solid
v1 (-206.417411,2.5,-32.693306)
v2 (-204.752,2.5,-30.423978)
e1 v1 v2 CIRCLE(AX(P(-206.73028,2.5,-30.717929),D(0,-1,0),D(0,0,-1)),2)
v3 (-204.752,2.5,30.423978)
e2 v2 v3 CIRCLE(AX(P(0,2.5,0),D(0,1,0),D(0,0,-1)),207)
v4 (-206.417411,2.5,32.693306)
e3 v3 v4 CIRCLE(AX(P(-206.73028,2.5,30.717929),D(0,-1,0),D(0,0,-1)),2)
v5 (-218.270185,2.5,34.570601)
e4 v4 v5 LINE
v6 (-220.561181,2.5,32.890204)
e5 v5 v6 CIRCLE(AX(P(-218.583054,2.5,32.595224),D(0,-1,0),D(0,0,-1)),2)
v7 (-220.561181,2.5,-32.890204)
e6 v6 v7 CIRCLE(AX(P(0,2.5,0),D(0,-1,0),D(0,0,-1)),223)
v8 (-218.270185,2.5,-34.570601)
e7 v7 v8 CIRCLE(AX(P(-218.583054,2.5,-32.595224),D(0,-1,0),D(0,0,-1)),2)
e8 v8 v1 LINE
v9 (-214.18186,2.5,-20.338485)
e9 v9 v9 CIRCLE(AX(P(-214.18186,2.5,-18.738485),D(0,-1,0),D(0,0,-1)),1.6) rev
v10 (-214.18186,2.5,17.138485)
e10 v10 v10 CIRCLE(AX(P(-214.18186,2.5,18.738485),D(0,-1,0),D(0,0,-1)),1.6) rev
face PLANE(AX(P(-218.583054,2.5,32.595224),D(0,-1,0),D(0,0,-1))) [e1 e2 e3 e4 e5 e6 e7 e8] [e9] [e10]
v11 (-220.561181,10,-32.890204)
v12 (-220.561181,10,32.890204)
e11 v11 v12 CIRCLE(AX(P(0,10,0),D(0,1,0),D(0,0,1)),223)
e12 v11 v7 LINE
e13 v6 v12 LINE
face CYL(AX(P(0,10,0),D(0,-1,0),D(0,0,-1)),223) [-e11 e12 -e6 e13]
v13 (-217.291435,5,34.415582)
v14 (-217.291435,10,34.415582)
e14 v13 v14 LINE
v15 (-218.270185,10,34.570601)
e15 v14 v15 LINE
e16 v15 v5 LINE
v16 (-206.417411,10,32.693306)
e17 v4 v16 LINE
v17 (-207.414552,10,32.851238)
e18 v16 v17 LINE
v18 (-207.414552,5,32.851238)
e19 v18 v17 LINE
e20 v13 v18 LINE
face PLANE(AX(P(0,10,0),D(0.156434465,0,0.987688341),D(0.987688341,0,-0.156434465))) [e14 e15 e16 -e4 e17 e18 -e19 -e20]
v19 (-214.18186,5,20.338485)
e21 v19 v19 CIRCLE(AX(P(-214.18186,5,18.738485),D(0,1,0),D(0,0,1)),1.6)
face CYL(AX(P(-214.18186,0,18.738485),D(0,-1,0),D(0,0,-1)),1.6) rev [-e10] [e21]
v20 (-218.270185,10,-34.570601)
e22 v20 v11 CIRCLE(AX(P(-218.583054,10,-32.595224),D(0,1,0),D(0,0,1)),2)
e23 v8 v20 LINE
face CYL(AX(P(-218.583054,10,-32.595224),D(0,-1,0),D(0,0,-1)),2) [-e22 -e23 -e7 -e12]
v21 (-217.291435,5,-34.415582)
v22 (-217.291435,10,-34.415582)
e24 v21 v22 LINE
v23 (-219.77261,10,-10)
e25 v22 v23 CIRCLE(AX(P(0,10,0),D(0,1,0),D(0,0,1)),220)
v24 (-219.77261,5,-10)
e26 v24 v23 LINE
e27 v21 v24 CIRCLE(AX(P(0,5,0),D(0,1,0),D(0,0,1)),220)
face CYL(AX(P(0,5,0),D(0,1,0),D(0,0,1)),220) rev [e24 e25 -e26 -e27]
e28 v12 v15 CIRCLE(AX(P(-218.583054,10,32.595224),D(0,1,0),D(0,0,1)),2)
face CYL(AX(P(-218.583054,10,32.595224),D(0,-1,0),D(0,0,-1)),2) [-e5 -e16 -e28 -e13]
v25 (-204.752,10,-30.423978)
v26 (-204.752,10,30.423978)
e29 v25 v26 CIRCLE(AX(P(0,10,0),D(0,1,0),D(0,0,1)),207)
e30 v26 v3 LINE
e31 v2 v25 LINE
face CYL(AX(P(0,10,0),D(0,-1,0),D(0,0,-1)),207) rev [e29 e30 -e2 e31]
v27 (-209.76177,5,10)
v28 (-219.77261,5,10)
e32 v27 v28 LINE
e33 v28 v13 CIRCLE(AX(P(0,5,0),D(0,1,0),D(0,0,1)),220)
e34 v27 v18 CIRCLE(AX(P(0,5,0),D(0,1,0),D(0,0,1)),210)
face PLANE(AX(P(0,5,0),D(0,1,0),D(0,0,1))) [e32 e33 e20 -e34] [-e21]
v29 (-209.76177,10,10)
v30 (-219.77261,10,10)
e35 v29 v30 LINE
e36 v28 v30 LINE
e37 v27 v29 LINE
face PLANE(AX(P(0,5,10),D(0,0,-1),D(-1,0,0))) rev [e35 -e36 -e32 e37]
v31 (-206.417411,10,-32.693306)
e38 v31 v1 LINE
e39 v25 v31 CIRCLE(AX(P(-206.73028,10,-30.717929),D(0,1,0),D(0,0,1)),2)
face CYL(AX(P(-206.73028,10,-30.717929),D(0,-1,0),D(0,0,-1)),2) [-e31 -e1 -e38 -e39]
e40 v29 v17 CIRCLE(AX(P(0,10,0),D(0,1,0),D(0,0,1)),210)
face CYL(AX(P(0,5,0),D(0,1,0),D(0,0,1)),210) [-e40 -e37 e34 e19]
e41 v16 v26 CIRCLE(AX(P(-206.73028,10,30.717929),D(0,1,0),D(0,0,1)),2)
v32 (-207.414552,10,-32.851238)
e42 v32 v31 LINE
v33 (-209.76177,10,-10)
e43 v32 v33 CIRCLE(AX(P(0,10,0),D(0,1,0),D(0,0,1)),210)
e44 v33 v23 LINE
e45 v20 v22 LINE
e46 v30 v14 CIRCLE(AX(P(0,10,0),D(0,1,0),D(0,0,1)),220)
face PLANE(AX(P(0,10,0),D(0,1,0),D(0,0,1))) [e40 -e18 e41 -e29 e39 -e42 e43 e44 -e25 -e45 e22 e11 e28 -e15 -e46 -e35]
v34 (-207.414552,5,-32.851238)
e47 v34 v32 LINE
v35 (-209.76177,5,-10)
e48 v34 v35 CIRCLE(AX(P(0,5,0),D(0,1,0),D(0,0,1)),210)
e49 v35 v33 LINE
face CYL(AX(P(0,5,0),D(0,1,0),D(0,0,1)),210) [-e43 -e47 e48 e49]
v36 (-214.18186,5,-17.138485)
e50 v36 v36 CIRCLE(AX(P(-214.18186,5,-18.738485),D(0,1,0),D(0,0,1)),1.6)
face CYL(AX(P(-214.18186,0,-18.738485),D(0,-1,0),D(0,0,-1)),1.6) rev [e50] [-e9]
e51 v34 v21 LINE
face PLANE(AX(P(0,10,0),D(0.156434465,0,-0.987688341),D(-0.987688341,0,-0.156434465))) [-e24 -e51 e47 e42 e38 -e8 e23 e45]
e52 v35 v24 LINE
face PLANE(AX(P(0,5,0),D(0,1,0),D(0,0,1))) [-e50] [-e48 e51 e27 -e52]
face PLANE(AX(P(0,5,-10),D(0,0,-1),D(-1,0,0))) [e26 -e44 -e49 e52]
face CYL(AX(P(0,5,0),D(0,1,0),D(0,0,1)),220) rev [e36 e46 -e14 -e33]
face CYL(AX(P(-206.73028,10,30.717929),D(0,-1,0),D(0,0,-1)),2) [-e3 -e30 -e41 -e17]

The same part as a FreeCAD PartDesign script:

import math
import FreeCAD as App
import Part
import Sketcher
from FreeCAD import Vector
Q = App.Units.Quantity


def edges_at(feature, points):
    """Names of the edges that pass closest to the given points."""
    edges = feature.Shape.Edges
    near = lambda p: min(range(len(edges)), key=lambda i: edges[i].distToShape(Part.Vertex(*p))[0])
    return sorted({f"Edge{near(p) + 1}" for p in points})

doc = App.newDocument("Part")
body = doc.addObject("PartDesign::Body", "Body")

# Sketch on XZ plane
sketch1 = doc.addObject("Sketcher::SketchObject", "Sketch")
body.addObject(sketch1)
sketch1.AttachmentSupport = (doc.XZ_Plane, [""])
sketch1.MapMode = "FlatFace"
sketch1.addGeometry(Part.LineSegment(Vector(-217.291435, 34.415582, 0), Vector(-207.414552, 32.851238, 0)), False)
sketch1.addGeometry(Part.LineSegment(Vector(-207.414552, 32.851238, 0), Vector(-204.451487, 32.381934, 0)), False)
sketch1.addGeometry(Part.ArcOfCircle(Part.Circle(Vector(0, 0, 0), Vector(0, 0, 1), 207), math.radians(171), math.radians(189)), False)
sketch1.addGeometry(Part.LineSegment(Vector(-204.451487, -32.381934, 0), Vector(-207.414552, -32.851238, 0)), False)
sketch1.addGeometry(Part.LineSegment(Vector(-207.414552, -32.851238, 0), Vector(-217.291435, -34.415582, 0)), False)
sketch1.addGeometry(Part.LineSegment(Vector(-217.291435, -34.415582, 0), Vector(-220.2545, -34.884886, 0)), False)
sketch1.addGeometry(Part.ArcOfCircle(Part.Circle(Vector(0, 0, 0), Vector(0, 0, 1), 223), math.radians(171), math.radians(189)), False)
sketch1.addGeometry(Part.LineSegment(Vector(-220.2545, 34.884886, 0), Vector(-217.291435, 34.415582, 0)), False)
sketch1.addConstraint(Sketcher.Constraint("Coincident", 0, 2, 1, 1))
sketch1.addConstraint(Sketcher.Constraint("Coincident", 1, 2, 2, 1))
sketch1.addConstraint(Sketcher.Constraint("Coincident", 2, 2, 3, 1))
sketch1.addConstraint(Sketcher.Constraint("Coincident", 3, 2, 4, 1))
sketch1.addConstraint(Sketcher.Constraint("Coincident", 4, 2, 5, 1))
sketch1.addConstraint(Sketcher.Constraint("Coincident", 5, 2, 6, 2))
sketch1.addConstraint(Sketcher.Constraint("Coincident", 6, 1, 7, 1))
sketch1.addConstraint(Sketcher.Constraint("Coincident", 7, 2, 0, 1))
sketch1.addConstraint(Sketcher.Constraint("Coincident", 2, 3, -1, 1))
sketch1.addConstraint(Sketcher.Constraint("Coincident", 6, 3, -1, 1))
sketch1.addConstraint(Sketcher.Constraint("Symmetric", 0, 2, 3, 2, -1))
sketch1.addConstraint(Sketcher.Constraint("Symmetric", 4, 2, 7, 2, -1))
sketch1.addConstraint(Sketcher.Constraint("Parallel", 0, 1))
sketch1.addConstraint(Sketcher.Constraint("Parallel", 3, 4))
sketch1.addConstraint(Sketcher.Constraint("Parallel", 4, 5))
sketch1.addConstraint(Sketcher.Constraint("Parallel", 1, 7))
sketch1.addConstraint(Sketcher.Constraint("Equal", 3, 5))
sketch1.addConstraint(Sketcher.Constraint("Radius", 2, Q("207 mm")))
sketch1.addConstraint(Sketcher.Constraint("Radius", 6, Q("223 mm")))
sketch1.addConstraint(Sketcher.Constraint("Angle", 0, Q("-9 deg")))
sketch1.addConstraint(Sketcher.Constraint("Distance", 0, Q("10 mm")))
sketch1.addConstraint(Sketcher.Constraint("DistanceX", 5, 2, -1, 1, Q("220.2545 mm")))
pad1 = doc.addObject("PartDesign::Pad", "Pad")
body.addObject(pad1)
pad1.Profile = sketch1
pad1.Length = 10
pad1.Reversed = True

# Sketch on XZ plane
sketch2 = doc.addObject("Sketcher::SketchObject", "Sketch001")
body.addObject(sketch2)
sketch2.AttachmentSupport = (doc.XZ_Plane, [""])
sketch2.MapMode = "FlatFace"
sketch2.AttachmentOffset = App.Placement(Vector(0, 0, -10), App.Rotation())
sketch2.addGeometry(Part.LineSegment(Vector(-219.77261, -10, 0), Vector(-209.76177, -10, 0)), False)
sketch2.addGeometry(Part.ArcOfCircle(Part.Circle(Vector(0, 0, 0), Vector(0, 0, 1), 210), math.radians(-177.270597), math.radians(-171)), False)
sketch2.addGeometry(Part.LineSegment(Vector(-207.414552, -32.851238, 0), Vector(-217.291435, -34.415582, 0)), False)
sketch2.addGeometry(Part.ArcOfCircle(Part.Circle(Vector(0, 0, 0), Vector(0, 0, 1), 220), math.radians(-177.394749), math.radians(-171)), False)
sketch2.addGeometry(Part.ArcOfCircle(Part.Circle(Vector(0, 0, 0), Vector(0, 0, 1), 210), math.radians(171), math.radians(177.270597)), False)
sketch2.addGeometry(Part.LineSegment(Vector(-209.76177, 10, 0), Vector(-219.77261, 10, 0)), False)
sketch2.addGeometry(Part.ArcOfCircle(Part.Circle(Vector(0, 0, 0), Vector(0, 0, 1), 220), math.radians(171), math.radians(177.394749)), False)
sketch2.addGeometry(Part.LineSegment(Vector(-217.291435, 34.415582, 0), Vector(-207.414552, 32.851238, 0)), False)
sketch2.addConstraint(Sketcher.Constraint("Coincident", 0, 2, 1, 1))
sketch2.addConstraint(Sketcher.Constraint("Coincident", 1, 2, 2, 1))
sketch2.addConstraint(Sketcher.Constraint("Coincident", 2, 2, 3, 2))
sketch2.addConstraint(Sketcher.Constraint("Coincident", 3, 1, 0, 1))
sketch2.addConstraint(Sketcher.Constraint("Coincident", 4, 2, 5, 1))
sketch2.addConstraint(Sketcher.Constraint("Coincident", 5, 2, 6, 2))
sketch2.addConstraint(Sketcher.Constraint("Coincident", 6, 1, 7, 1))
sketch2.addConstraint(Sketcher.Constraint("Coincident", 7, 2, 4, 1))
sketch2.addConstraint(Sketcher.Constraint("Horizontal", 0))
sketch2.addConstraint(Sketcher.Constraint("Horizontal", 5))
sketch2.addConstraint(Sketcher.Constraint("Coincident", 1, 3, -1, 1))
sketch2.addConstraint(Sketcher.Constraint("Coincident", 3, 3, -1, 1))
sketch2.addConstraint(Sketcher.Constraint("Coincident", 4, 3, -1, 1))
sketch2.addConstraint(Sketcher.Constraint("Coincident", 6, 3, -1, 1))
sketch2.addConstraint(Sketcher.Constraint("Equal", 1, 4))
sketch2.addConstraint(Sketcher.Constraint("Equal", 3, 6))
sketch2.addConstraint(Sketcher.Constraint("Vertical", 0, 2, 4, 2))
sketch2.addConstraint(Sketcher.Constraint("Vertical", 2, 2, 6, 1))
sketch2.addConstraint(Sketcher.Constraint("Vertical", 1, 2, 7, 2))
sketch2.addConstraint(Sketcher.Constraint("Radius", 1, Q("210 mm")))
sketch2.addConstraint(Sketcher.Constraint("Radius", 3, Q("220 mm")))
sketch2.addConstraint(Sketcher.Constraint("Angle", 2, Q("-171 deg")))
sketch2.addConstraint(Sketcher.Constraint("DistanceY", 0, 2, -1, 1, Q("10 mm")))
sketch2.addConstraint(Sketcher.Constraint("DistanceX", 1, 2, -1, 1, Q("207.414552 mm")))
pocket1 = doc.addObject("PartDesign::Pocket", "Pocket")
body.addObject(pocket1)
pocket1.Profile = sketch2
pocket1.Length = 5
pocket1.Reversed = True

# Sketch on XZ plane
sketch3 = doc.addObject("Sketcher::SketchObject", "Sketch002")
body.addObject(sketch3)
sketch3.AttachmentSupport = (doc.XZ_Plane, [""])
sketch3.MapMode = "FlatFace"
sketch3.addGeometry(Part.Circle(Vector(-214.18186, 18.738485, 0), Vector(0, 0, 1), 1.6), False)
sketch3.addGeometry(Part.Circle(Vector(-214.18186, -18.738485, 0), Vector(0, 0, 1), 1.6), False)
sketch3.addConstraint(Sketcher.Constraint("Equal", 0, 1))
sketch3.addConstraint(Sketcher.Constraint("Symmetric", 0, 3, 1, 3, -1))
sketch3.addConstraint(Sketcher.Constraint("Diameter", 0, Q("3.2 mm")))
sketch3.addConstraint(Sketcher.Constraint("DistanceX", 0, 3, -1, 1, Q("214.18186 mm")))
sketch3.addConstraint(Sketcher.Constraint("DistanceY", 1, 3, 0, 3, Q("37.476969 mm")))
doc.recompute()
hole = doc.addObject("PartDesign::Hole", "Hole")
body.addObject(hole)
hole.Profile = sketch3
hole.ThreadType = "None"
hole.Diameter = 3.2
hole.DepthType = "ThroughAll"
doc.recompute()

fillet = doc.addObject("PartDesign::Fillet", "Fillet")
body.addObject(fillet)
fillet.Base = (hole, edges_at(hole, [
    (-220.254, 5, 34.885),
    (-220.254, 5, -34.885),
    (-204.451, 5, -32.382),
    (-204.451, 5, 32.382),
]))
fillet.Radius = 2

# Sketch on XZ plane
sketch4 = doc.addObject("Sketcher::SketchObject", "Sketch003")
body.addObject(sketch4)
sketch4.AttachmentSupport = (doc.XZ_Plane, [""])
sketch4.MapMode = "FlatFace"
sketch4.AttachmentOffset = App.Placement(Vector(0, 0, -2.5), App.Rotation())
sketch4.addGeometry(Part.LineSegment(Vector(-218.270185, -34.570601, 0), Vector(-206.417411, -32.693306, 0)), False)
sketch4.addGeometry(Part.ArcOfCircle(Part.Circle(Vector(-206.73028, -30.717929, 0), Vector(0, 0, 1), 2), math.radians(-81), math.radians(8.451707)), False)
sketch4.addGeometry(Part.ArcOfCircle(Part.Circle(Vector(0, 0, 0), Vector(0, 0, 1), 207), math.radians(171.548293), math.radians(188.451707)), False)
sketch4.addGeometry(Part.ArcOfCircle(Part.Circle(Vector(-206.73028, 30.717929, 0), Vector(0, 0, 1), 2), math.radians(-8.451707), math.radians(81)), False)
sketch4.addGeometry(Part.LineSegment(Vector(-206.417411, 32.693306, 0), Vector(-218.270185, 34.570601, 0)), False)
sketch4.addGeometry(Part.ArcOfCircle(Part.Circle(Vector(-218.583054, 32.595224, 0), Vector(0, 0, 1), 2), math.radians(81), math.radians(171.518521)), False)
sketch4.addGeometry(Part.ArcOfCircle(Part.Circle(Vector(0, 0, 0), Vector(0, 0, 1), 223), math.radians(171.518521), math.radians(188.481479)), False)
sketch4.addGeometry(Part.ArcOfCircle(Part.Circle(Vector(-218.583054, -32.595224, 0), Vector(0, 0, 1), 2), math.radians(-171.518521), math.radians(-81)), False)
sketch4.addConstraint(Sketcher.Constraint("Tangent", 0, 2, 1, 1))
sketch4.addConstraint(Sketcher.Constraint("Tangent", 1, 2, 2, 2))
sketch4.addConstraint(Sketcher.Constraint("Tangent", 2, 1, 3, 1))
sketch4.addConstraint(Sketcher.Constraint("Tangent", 3, 2, 4, 1))
sketch4.addConstraint(Sketcher.Constraint("Tangent", 4, 2, 5, 1))
sketch4.addConstraint(Sketcher.Constraint("Tangent", 5, 2, 6, 1))
sketch4.addConstraint(Sketcher.Constraint("Tangent", 6, 2, 7, 1))
sketch4.addConstraint(Sketcher.Constraint("Tangent", 7, 2, 0, 1))
sketch4.addConstraint(Sketcher.Constraint("Coincident", 2, 3, -1, 1))
sketch4.addConstraint(Sketcher.Constraint("Coincident", 6, 3, -1, 1))
sketch4.addConstraint(Sketcher.Constraint("Equal", 1, 3))
sketch4.addConstraint(Sketcher.Constraint("Equal", 3, 5))
sketch4.addConstraint(Sketcher.Constraint("Equal", 5, 7))
sketch4.addConstraint(Sketcher.Constraint("Symmetric", 0, 2, 3, 2, -1))
sketch4.addConstraint(Sketcher.Constraint("Radius", 1, Q("2 mm")))
sketch4.addConstraint(Sketcher.Constraint("Radius", 2, Q("207 mm")))
sketch4.addConstraint(Sketcher.Constraint("Radius", 6, Q("223 mm")))
sketch4.addConstraint(Sketcher.Constraint("Angle", 0, Q("9 deg")))
sketch4.addConstraint(Sketcher.Constraint("DistanceX", 1, 2, -1, 1, Q("204.752 mm")))
pocket2 = doc.addObject("PartDesign::Pocket", "Pocket001")
body.addObject(pocket2)
pocket2.Profile = sketch4
pocket2.Length = 2.5
pocket2.Reversed = True

doc.recompute()
